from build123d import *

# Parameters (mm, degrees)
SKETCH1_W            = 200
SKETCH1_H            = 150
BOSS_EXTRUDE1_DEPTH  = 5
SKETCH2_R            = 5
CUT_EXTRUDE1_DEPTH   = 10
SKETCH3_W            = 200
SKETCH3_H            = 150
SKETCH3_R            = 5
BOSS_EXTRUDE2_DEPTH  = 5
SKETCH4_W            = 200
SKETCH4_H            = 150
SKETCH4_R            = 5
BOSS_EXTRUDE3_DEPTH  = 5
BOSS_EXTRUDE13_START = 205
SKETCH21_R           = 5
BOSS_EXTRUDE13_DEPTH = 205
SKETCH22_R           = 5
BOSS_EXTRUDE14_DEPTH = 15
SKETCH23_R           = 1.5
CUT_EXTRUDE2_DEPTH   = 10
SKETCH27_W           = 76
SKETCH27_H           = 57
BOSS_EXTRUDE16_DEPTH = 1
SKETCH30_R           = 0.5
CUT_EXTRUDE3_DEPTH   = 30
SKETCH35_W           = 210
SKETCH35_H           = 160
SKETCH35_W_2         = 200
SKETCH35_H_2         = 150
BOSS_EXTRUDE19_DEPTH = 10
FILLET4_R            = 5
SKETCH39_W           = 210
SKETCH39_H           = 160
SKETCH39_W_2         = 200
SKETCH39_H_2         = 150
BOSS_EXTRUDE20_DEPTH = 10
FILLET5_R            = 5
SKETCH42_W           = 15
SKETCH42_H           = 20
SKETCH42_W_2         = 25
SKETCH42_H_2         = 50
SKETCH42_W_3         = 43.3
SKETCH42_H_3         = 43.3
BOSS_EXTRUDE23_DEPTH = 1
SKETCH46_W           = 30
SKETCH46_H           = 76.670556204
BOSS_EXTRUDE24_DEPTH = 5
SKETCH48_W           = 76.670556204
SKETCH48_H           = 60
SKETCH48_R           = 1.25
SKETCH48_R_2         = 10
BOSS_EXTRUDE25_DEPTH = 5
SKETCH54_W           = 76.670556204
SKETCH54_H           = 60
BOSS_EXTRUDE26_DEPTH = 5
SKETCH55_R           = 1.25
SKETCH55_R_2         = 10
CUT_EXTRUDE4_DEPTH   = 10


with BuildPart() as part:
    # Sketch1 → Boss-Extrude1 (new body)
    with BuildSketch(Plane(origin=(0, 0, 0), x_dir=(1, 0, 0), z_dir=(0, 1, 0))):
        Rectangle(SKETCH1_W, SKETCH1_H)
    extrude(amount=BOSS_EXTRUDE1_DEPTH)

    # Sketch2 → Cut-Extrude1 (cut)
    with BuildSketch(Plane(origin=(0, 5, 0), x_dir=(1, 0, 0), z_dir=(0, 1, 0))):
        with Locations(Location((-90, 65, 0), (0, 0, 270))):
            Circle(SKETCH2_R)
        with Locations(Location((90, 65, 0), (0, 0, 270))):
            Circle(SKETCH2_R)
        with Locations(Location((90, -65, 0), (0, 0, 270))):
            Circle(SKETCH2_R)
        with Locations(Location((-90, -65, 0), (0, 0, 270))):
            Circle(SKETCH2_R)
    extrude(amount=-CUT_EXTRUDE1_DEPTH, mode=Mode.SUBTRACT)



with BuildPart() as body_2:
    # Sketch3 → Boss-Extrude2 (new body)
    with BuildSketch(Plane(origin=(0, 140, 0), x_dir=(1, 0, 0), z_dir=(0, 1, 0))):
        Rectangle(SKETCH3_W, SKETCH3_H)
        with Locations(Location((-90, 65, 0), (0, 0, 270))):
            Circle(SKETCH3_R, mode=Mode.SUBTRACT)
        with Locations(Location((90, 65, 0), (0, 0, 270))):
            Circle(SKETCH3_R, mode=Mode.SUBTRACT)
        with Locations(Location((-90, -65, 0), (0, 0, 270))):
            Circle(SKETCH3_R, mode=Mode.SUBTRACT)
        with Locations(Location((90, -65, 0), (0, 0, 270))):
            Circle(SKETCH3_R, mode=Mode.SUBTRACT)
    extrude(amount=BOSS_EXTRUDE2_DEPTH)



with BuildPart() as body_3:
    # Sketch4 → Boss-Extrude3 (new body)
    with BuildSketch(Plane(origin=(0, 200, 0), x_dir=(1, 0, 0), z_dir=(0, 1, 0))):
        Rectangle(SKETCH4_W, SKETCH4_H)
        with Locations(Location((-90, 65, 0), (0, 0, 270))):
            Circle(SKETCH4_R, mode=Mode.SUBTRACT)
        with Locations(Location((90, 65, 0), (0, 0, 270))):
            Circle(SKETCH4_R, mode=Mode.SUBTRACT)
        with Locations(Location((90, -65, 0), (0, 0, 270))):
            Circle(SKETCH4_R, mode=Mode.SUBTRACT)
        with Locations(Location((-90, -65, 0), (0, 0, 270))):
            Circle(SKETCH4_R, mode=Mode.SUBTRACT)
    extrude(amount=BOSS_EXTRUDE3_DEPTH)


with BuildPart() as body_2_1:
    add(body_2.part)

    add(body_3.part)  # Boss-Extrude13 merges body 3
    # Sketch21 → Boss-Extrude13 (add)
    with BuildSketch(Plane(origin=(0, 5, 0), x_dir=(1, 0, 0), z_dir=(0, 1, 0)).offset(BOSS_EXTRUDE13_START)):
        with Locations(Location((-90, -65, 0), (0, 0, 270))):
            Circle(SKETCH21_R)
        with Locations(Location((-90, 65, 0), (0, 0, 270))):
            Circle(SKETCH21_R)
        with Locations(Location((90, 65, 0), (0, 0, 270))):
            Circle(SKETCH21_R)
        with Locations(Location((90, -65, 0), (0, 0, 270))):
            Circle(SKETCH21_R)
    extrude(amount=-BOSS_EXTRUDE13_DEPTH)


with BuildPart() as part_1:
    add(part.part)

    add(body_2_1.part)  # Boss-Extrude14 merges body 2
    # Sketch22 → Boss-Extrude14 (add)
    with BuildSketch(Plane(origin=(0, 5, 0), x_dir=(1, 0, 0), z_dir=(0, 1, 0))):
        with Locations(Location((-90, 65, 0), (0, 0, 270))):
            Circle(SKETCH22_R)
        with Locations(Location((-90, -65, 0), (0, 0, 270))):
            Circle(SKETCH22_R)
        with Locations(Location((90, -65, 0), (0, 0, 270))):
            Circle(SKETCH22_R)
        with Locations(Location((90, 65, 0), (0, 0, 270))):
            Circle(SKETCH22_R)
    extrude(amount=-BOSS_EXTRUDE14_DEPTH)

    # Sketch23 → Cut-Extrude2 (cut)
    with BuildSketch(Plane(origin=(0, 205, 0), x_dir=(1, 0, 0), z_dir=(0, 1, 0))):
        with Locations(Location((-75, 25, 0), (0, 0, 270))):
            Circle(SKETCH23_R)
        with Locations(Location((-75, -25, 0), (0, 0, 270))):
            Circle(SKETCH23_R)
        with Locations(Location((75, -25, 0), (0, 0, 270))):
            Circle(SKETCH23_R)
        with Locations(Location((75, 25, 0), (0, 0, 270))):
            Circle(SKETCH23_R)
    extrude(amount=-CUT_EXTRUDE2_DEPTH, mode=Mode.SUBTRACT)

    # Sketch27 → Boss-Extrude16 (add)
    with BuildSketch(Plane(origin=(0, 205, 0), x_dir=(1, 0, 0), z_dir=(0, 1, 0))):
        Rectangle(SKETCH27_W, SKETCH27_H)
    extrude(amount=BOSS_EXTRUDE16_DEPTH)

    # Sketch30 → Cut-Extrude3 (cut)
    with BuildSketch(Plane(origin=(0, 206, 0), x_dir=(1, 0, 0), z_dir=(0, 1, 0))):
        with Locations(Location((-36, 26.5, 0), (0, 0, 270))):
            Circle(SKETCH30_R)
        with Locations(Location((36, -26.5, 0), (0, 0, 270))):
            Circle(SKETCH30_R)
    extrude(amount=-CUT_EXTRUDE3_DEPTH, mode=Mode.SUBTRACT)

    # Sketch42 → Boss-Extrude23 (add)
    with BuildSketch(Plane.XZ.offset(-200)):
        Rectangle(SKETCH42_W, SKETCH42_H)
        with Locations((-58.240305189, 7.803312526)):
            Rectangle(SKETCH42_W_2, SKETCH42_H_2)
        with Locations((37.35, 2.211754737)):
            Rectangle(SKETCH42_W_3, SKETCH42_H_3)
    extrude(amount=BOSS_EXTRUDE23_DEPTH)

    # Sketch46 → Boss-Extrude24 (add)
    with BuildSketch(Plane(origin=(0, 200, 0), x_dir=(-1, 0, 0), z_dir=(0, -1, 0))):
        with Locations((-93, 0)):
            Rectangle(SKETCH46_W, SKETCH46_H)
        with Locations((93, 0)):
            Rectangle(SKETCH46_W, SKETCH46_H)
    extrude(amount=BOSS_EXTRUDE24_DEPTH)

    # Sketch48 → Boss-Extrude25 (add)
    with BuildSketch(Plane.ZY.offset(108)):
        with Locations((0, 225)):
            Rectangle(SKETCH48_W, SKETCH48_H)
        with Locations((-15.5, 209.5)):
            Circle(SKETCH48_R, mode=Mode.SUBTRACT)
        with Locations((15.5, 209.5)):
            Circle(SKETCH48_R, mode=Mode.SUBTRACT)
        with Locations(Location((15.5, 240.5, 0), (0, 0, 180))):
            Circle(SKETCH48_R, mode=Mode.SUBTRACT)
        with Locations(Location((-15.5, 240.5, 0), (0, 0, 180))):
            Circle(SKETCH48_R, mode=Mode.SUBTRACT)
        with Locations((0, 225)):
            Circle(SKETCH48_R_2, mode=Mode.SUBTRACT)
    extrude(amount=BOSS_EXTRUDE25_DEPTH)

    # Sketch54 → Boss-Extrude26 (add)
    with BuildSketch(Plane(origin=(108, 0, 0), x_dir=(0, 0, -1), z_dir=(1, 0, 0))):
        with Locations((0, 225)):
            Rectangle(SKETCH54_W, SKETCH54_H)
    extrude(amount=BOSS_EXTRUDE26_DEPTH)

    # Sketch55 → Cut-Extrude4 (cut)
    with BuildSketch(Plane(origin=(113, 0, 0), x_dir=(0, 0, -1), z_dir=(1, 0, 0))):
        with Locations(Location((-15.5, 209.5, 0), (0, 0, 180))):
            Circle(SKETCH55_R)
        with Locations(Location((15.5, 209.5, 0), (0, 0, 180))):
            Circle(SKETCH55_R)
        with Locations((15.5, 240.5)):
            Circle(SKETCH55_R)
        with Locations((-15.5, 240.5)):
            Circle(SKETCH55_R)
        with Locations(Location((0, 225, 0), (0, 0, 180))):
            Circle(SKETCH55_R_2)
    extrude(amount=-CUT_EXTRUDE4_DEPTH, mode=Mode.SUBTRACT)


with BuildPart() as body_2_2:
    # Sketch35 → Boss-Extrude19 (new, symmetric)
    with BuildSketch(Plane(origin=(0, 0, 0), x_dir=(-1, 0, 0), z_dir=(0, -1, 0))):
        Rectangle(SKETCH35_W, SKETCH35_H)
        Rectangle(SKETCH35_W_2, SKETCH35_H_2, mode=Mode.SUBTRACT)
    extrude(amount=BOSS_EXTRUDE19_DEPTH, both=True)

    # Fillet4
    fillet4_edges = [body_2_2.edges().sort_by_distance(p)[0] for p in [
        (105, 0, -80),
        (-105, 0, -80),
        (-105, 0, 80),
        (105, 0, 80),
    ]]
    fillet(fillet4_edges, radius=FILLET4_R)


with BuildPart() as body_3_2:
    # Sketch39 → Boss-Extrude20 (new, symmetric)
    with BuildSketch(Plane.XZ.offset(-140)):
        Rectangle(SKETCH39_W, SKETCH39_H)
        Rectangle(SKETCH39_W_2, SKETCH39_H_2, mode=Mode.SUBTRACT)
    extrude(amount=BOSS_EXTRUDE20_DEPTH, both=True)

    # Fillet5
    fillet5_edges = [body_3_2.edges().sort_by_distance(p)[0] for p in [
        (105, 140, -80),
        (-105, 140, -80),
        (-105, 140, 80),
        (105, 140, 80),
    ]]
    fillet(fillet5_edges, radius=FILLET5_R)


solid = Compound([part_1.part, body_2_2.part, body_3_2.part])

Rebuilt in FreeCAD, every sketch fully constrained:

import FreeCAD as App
import Part
import Sketcher
from FreeCAD import Vector
Q = App.Units.Quantity


def edges_at(feature, points):
    """Names of the edges that pass closest to the given points."""
    edges = feature.Shape.Edges
    near = lambda p: min(range(len(edges)), key=lambda i: edges[i].distToShape(Part.Vertex(*p))[0])
    return sorted({f"Edge{near(p) + 1}" for p in points})

doc = App.newDocument("Part")
body = doc.addObject("PartDesign::Body", "Body")

# Sketch on XZ plane
sketch1 = doc.addObject("Sketcher::SketchObject", "Sketch")
body.addObject(sketch1)
sketch1.AttachmentSupport = (doc.XZ_Plane, [""])
sketch1.MapMode = "FlatFace"
sketch1.addGeometry(Part.LineSegment(Vector(-100, -75, 0), Vector(-100, 75, 0)), False)
sketch1.addGeometry(Part.LineSegment(Vector(-100, 75, 0), Vector(100, 75, 0)), False)
sketch1.addGeometry(Part.LineSegment(Vector(100, 75, 0), Vector(100, -75, 0)), False)
sketch1.addGeometry(Part.LineSegment(Vector(100, -75, 0), Vector(-100, -75, 0)), False)
sketch1.addConstraint(Sketcher.Constraint("Coincident", 0, 2, 1, 1))
sketch1.addConstraint(Sketcher.Constraint("Coincident", 1, 2, 2, 1))
sketch1.addConstraint(Sketcher.Constraint("Coincident", 2, 2, 3, 1))
sketch1.addConstraint(Sketcher.Constraint("Coincident", 3, 2, 0, 1))
sketch1.addConstraint(Sketcher.Constraint("Vertical", 0))
sketch1.addConstraint(Sketcher.Constraint("Horizontal", 1))
sketch1.addConstraint(Sketcher.Constraint("Vertical", 2))
sketch1.addConstraint(Sketcher.Constraint("Horizontal", 3))
sketch1.addConstraint(Sketcher.Constraint("Symmetric", 0, 2, 2, 2, -1, 1))
sketch1.addConstraint(Sketcher.Constraint("DistanceX", 1, 1, 1, 2, Q("200 mm")))
sketch1.addConstraint(Sketcher.Constraint("DistanceY", 0, 1, 0, 2, Q("150 mm")))
pad1 = doc.addObject("PartDesign::Pad", "Pad")
body.addObject(pad1)
pad1.Profile = sketch1
pad1.Length = 5
pad1.Reversed = True

# Sketch on XZ plane
sketch2 = doc.addObject("Sketcher::SketchObject", "Sketch001")
body.addObject(sketch2)
sketch2.AttachmentSupport = (doc.XZ_Plane, [""])
sketch2.MapMode = "FlatFace"
sketch2.AttachmentOffset = App.Placement(Vector(0, 0, -5), App.Rotation())
sketch2.addGeometry(Part.Circle(Vector(-90, -65, 0), Vector(0, 0, 1), 5), False)
sketch2.addGeometry(Part.Circle(Vector(90, -65, 0), Vector(0, 0, 1), 5), False)
sketch2.addGeometry(Part.Circle(Vector(90, 65, 0), Vector(0, 0, 1), 5), False)
sketch2.addGeometry(Part.Circle(Vector(-90, 65, 0), Vector(0, 0, 1), 5), False)
sketch2.addConstraint(Sketcher.Constraint("Equal", 0, 1))
sketch2.addConstraint(Sketcher.Constraint("Equal", 1, 2))
sketch2.addConstraint(Sketcher.Constraint("Equal", 2, 3))
sketch2.addConstraint(Sketcher.Constraint("Symmetric", 0, 3, 2, 3, -1, 1))
sketch2.addConstraint(Sketcher.Constraint("Symmetric", 1, 3, 3, 3, -1, 1))
sketch2.addConstraint(Sketcher.Constraint("Symmetric", 0, 3, 1, 3, -2))
sketch2.addConstraint(Sketcher.Constraint("Diameter", 0, Q("10 mm")))
sketch2.addConstraint(Sketcher.Constraint("DistanceX", 0, 3, -1, 1, Q("90 mm")))
sketch2.addConstraint(Sketcher.Constraint("DistanceY", 0, 3, -1, 1, Q("65 mm")))
pocket1 = doc.addObject("PartDesign::Pocket", "Pocket")
body.addObject(pocket1)
pocket1.Profile = sketch2
pocket1.Length = 10
pocket1.Reversed = True
body2 = doc.addObject("PartDesign::Body", "Body001")

# Sketch on XZ plane
sketch3 = doc.addObject("Sketcher::SketchObject", "Sketch002")
body2.addObject(sketch3)
sketch3.AttachmentSupport = (doc.getObject("XZ_Plane001"), [""])
sketch3.MapMode = "FlatFace"
sketch3.AttachmentOffset = App.Placement(Vector(0, 0, -140), App.Rotation())
sketch3.addGeometry(Part.LineSegment(Vector(-100, -75, 0), Vector(-100, 75, 0)), False)
sketch3.addGeometry(Part.LineSegment(Vector(-100, 75, 0), Vector(100, 75, 0)), False)
sketch3.addGeometry(Part.LineSegment(Vector(100, 75, 0), Vector(100, -75, 0)), False)
sketch3.addGeometry(Part.LineSegment(Vector(100, -75, 0), Vector(-100, -75, 0)), False)
sketch3.addGeometry(Part.Circle(Vector(-90, 65, 0), Vector(0, 0, 1), 5), False)
sketch3.addGeometry(Part.Circle(Vector(90, 65, 0), Vector(0, 0, 1), 5), False)
sketch3.addGeometry(Part.Circle(Vector(-90, -65, 0), Vector(0, 0, 1), 5), False)
sketch3.addGeometry(Part.Circle(Vector(90, -65, 0), Vector(0, 0, 1), 5), False)
sketch3.addConstraint(Sketcher.Constraint("Coincident", 0, 2, 1, 1))
sketch3.addConstraint(Sketcher.Constraint("Coincident", 1, 2, 2, 1))
sketch3.addConstraint(Sketcher.Constraint("Coincident", 2, 2, 3, 1))
sketch3.addConstraint(Sketcher.Constraint("Coincident", 3, 2, 0, 1))
sketch3.addConstraint(Sketcher.Constraint("Vertical", 0))
sketch3.addConstraint(Sketcher.Constraint("Horizontal", 1))
sketch3.addConstraint(Sketcher.Constraint("Vertical", 2))
sketch3.addConstraint(Sketcher.Constraint("Horizontal", 3))
sketch3.addConstraint(Sketcher.Constraint("Equal", 4, 5))
sketch3.addConstraint(Sketcher.Constraint("Equal", 5, 6))
sketch3.addConstraint(Sketcher.Constraint("Equal", 6, 7))
sketch3.addConstraint(Sketcher.Constraint("Symmetric", 5, 3, 6, 3, -1, 1))
sketch3.addConstraint(Sketcher.Constraint("Symmetric", 4, 3, 7, 3, -1, 1))
sketch3.addConstraint(Sketcher.Constraint("Symmetric", 0, 2, 2, 2, -1, 1))
sketch3.addConstraint(Sketcher.Constraint("Symmetric", 4, 3, 5, 3, -2))
sketch3.addConstraint(Sketcher.Constraint("Diameter", 4, Q("10 mm")))
sketch3.addConstraint(Sketcher.Constraint("DistanceX", 1, 1, 1, 2, Q("200 mm")))
sketch3.addConstraint(Sketcher.Constraint("DistanceY", 0, 1, 0, 2, Q("150 mm")))
sketch3.addConstraint(Sketcher.Constraint("DistanceX", 4, 3, -1, 1, Q("90 mm")))
sketch3.addConstraint(Sketcher.Constraint("DistanceY", -1, 1, 4, 3, Q("65 mm")))
pad2 = doc.addObject("PartDesign::Pad", "Pad001")
body2.addObject(pad2)
pad2.Profile = sketch3
pad2.Length = 5
pad2.Reversed = True
body3 = doc.addObject("PartDesign::Body", "Body002")

# Sketch on XZ plane
sketch4 = doc.addObject("Sketcher::SketchObject", "Sketch003")
body3.addObject(sketch4)
sketch4.AttachmentSupport = (doc.getObject("XZ_Plane002"), [""])
sketch4.MapMode = "FlatFace"
sketch4.AttachmentOffset = App.Placement(Vector(0, 0, -200), App.Rotation())
sketch4.addGeometry(Part.LineSegment(Vector(-100, -75, 0), Vector(-100, 75, 0)), False)
sketch4.addGeometry(Part.LineSegment(Vector(-100, 75, 0), Vector(100, 75, 0)), False)
sketch4.addGeometry(Part.LineSegment(Vector(100, 75, 0), Vector(100, -75, 0)), False)
sketch4.addGeometry(Part.LineSegment(Vector(100, -75, 0), Vector(-100, -75, 0)), False)
sketch4.addGeometry(Part.Circle(Vector(-90, 65, 0), Vector(0, 0, 1), 5), False)
sketch4.addGeometry(Part.Circle(Vector(90, 65, 0), Vector(0, 0, 1), 5), False)
sketch4.addGeometry(Part.Circle(Vector(-90, -65, 0), Vector(0, 0, 1), 5), False)
sketch4.addGeometry(Part.Circle(Vector(90, -65, 0), Vector(0, 0, 1), 5), False)
sketch4.addConstraint(Sketcher.Constraint("Coincident", 0, 2, 1, 1))
sketch4.addConstraint(Sketcher.Constraint("Coincident", 1, 2, 2, 1))
sketch4.addConstraint(Sketcher.Constraint("Coincident", 2, 2, 3, 1))
sketch4.addConstraint(Sketcher.Constraint("Coincident", 3, 2, 0, 1))
sketch4.addConstraint(Sketcher.Constraint("Vertical", 0))
sketch4.addConstraint(Sketcher.Constraint("Horizontal", 1))
sketch4.addConstraint(Sketcher.Constraint("Vertical", 2))
sketch4.addConstraint(Sketcher.Constraint("Horizontal", 3))
sketch4.addConstraint(Sketcher.Constraint("Equal", 4, 5))
sketch4.addConstraint(Sketcher.Constraint("Equal", 5, 6))
sketch4.addConstraint(Sketcher.Constraint("Equal", 6, 7))
sketch4.addConstraint(Sketcher.Constraint("Symmetric", 5, 3, 6, 3, -1, 1))
sketch4.addConstraint(Sketcher.Constraint("Symmetric", 4, 3, 7, 3, -1, 1))
sketch4.addConstraint(Sketcher.Constraint("Symmetric", 0, 2, 2, 2, -1, 1))
sketch4.addConstraint(Sketcher.Constraint("Symmetric", 4, 3, 5, 3, -2))
sketch4.addConstraint(Sketcher.Constraint("Diameter", 4, Q("10 mm")))
sketch4.addConstraint(Sketcher.Constraint("DistanceX", 1, 1, 1, 2, Q("200 mm")))
sketch4.addConstraint(Sketcher.Constraint("DistanceY", 0, 1, 0, 2, Q("150 mm")))
sketch4.addConstraint(Sketcher.Constraint("DistanceX", 4, 3, -1, 1, Q("90 mm")))
sketch4.addConstraint(Sketcher.Constraint("DistanceY", -1, 1, 4, 3, Q("65 mm")))
pad3 = doc.addObject("PartDesign::Pad", "Pad002")
body3.addObject(pad3)
pad3.Profile = sketch4
pad3.Length = 5
pad3.Reversed = True
body2.AllowCompound = True
doc.recompute()

boolean = doc.addObject("PartDesign::Boolean", "Boolean")
body2.addObject(boolean)
boolean.Type = "Fuse"
boolean.addObjects([body3])

# Sketch on XZ plane
sketch5 = doc.addObject("Sketcher::SketchObject", "Sketch004")
body2.addObject(sketch5)
sketch5.AttachmentSupport = (doc.getObject("XZ_Plane001"), [""])
sketch5.MapMode = "FlatFace"
sketch5.AttachmentOffset = App.Placement(Vector(0, 0, -210), App.Rotation())
sketch5.addGeometry(Part.Circle(Vector(-90, 65, 0), Vector(0, 0, 1), 5), False)
sketch5.addGeometry(Part.Circle(Vector(-90, -65, 0), Vector(0, 0, 1), 5), False)
sketch5.addGeometry(Part.Circle(Vector(90, -65, 0), Vector(0, 0, 1), 5), False)
sketch5.addGeometry(Part.Circle(Vector(90, 65, 0), Vector(0, 0, 1), 5), False)
sketch5.addConstraint(Sketcher.Constraint("Equal", 0, 1))
sketch5.addConstraint(Sketcher.Constraint("Equal", 1, 2))
sketch5.addConstraint(Sketcher.Constraint("Equal", 2, 3))
sketch5.addConstraint(Sketcher.Constraint("Symmetric", 0, 3, 2, 3, -1, 1))
sketch5.addConstraint(Sketcher.Constraint("Symmetric", 1, 3, 3, 3, -1, 1))
sketch5.addConstraint(Sketcher.Constraint("Symmetric", 1, 3, 2, 3, -2))
sketch5.addConstraint(Sketcher.Constraint("Diameter", 0, Q("10 mm")))
sketch5.addConstraint(Sketcher.Constraint("DistanceX", 0, 3, -1, 1, Q("90 mm")))
sketch5.addConstraint(Sketcher.Constraint("DistanceY", -1, 1, 0, 3, Q("65 mm")))
pad4 = doc.addObject("PartDesign::Pad", "Pad003")
body2.addObject(pad4)
pad4.Profile = sketch5
pad4.Length = 205
body.AllowCompound = True
doc.recompute()

boolean2 = doc.addObject("PartDesign::Boolean", "Boolean001")
body.addObject(boolean2)
boolean2.Type = "Fuse"
boolean2.addObjects([body2])

# Sketch on XZ plane
sketch6 = doc.addObject("Sketcher::SketchObject", "Sketch005")
body.addObject(sketch6)
sketch6.AttachmentSupport = (doc.XZ_Plane, [""])
sketch6.MapMode = "FlatFace"
sketch6.AttachmentOffset = App.Placement(Vector(0, 0, -5), App.Rotation())
sketch6.addGeometry(Part.Circle(Vector(-90, -65, 0), Vector(0, 0, 1), 5), False)
sketch6.addGeometry(Part.Circle(Vector(-90, 65, 0), Vector(0, 0, 1), 5), False)
sketch6.addGeometry(Part.Circle(Vector(90, 65, 0), Vector(0, 0, 1), 5), False)
sketch6.addGeometry(Part.Circle(Vector(90, -65, 0), Vector(0, 0, 1), 5), False)
sketch6.addConstraint(Sketcher.Constraint("Equal", 0, 1))
sketch6.addConstraint(Sketcher.Constraint("Equal", 1, 2))
sketch6.addConstraint(Sketcher.Constraint("Equal", 2, 3))
sketch6.addConstraint(Sketcher.Constraint("Symmetric", 0, 3, 2, 3, -1, 1))
sketch6.addConstraint(Sketcher.Constraint("Symmetric", 1, 3, 3, 3, -1, 1))
sketch6.addConstraint(Sketcher.Constraint("Symmetric", 1, 3, 2, 3, -2))
sketch6.addConstraint(Sketcher.Constraint("Diameter", 0, Q("10 mm")))
sketch6.addConstraint(Sketcher.Constraint("DistanceX", 0, 3, -1, 1, Q("90 mm")))
sketch6.addConstraint(Sketcher.Constraint("DistanceY", 0, 3, -1, 1, Q("65 mm")))
pad5 = doc.addObject("PartDesign::Pad", "Pad004")
body.addObject(pad5)
pad5.Profile = sketch6
pad5.Length = 15

# Sketch on XZ plane
sketch7 = doc.addObject("Sketcher::SketchObject", "Sketch006")
body.addObject(sketch7)
sketch7.AttachmentSupport = (doc.XZ_Plane, [""])
sketch7.MapMode = "FlatFace"
sketch7.AttachmentOffset = App.Placement(Vector(0, 0, -205), App.Rotation())
sketch7.addGeometry(Part.Circle(Vector(-75, -25, 0), Vector(0, 0, 1), 1.5), False)
sketch7.addGeometry(Part.Circle(Vector(-75, 25, 0), Vector(0, 0, 1), 1.5), False)
sketch7.addGeometry(Part.Circle(Vector(75, 25, 0), Vector(0, 0, 1), 1.5), False)
sketch7.addGeometry(Part.Circle(Vector(75, -25, 0), Vector(0, 0, 1), 1.5), False)
sketch7.addConstraint(Sketcher.Constraint("Equal", 0, 1))
sketch7.addConstraint(Sketcher.Constraint("Equal", 1, 2))
sketch7.addConstraint(Sketcher.Constraint("Equal", 2, 3))
sketch7.addConstraint(Sketcher.Constraint("Symmetric", 0, 3, 2, 3, -1, 1))
sketch7.addConstraint(Sketcher.Constraint("Symmetric", 1, 3, 3, 3, -1, 1))
sketch7.addConstraint(Sketcher.Constraint("Symmetric", 1, 3, 2, 3, -2))
sketch7.addConstraint(Sketcher.Constraint("Diameter", 0, Q("3 mm")))
sketch7.addConstraint(Sketcher.Constraint("DistanceX", 0, 3, -1, 1, Q("75 mm")))
sketch7.addConstraint(Sketcher.Constraint("DistanceY", 0, 3, -1, 1, Q("25 mm")))
pocket2 = doc.addObject("PartDesign::Pocket", "Pocket001")
body.addObject(pocket2)
pocket2.Profile = sketch7
pocket2.Length = 10
pocket2.Reversed = True

# Sketch on XZ plane
sketch8 = doc.addObject("Sketcher::SketchObject", "Sketch007")
body.addObject(sketch8)
sketch8.AttachmentSupport = (doc.XZ_Plane, [""])
sketch8.MapMode = "FlatFace"
sketch8.AttachmentOffset = App.Placement(Vector(0, 0, -205), App.Rotation())
sketch8.addGeometry(Part.LineSegment(Vector(-38, -28.5, 0), Vector(-38, 28.5, 0)), False)
sketch8.addGeometry(Part.LineSegment(Vector(-38, 28.5, 0), Vector(38, 28.5, 0)), False)
sketch8.addGeometry(Part.LineSegment(Vector(38, 28.5, 0), Vector(38, -28.5, 0)), False)
sketch8.addGeometry(Part.LineSegment(Vector(38, -28.5, 0), Vector(-38, -28.5, 0)), False)
sketch8.addConstraint(Sketcher.Constraint("Coincident", 0, 2, 1, 1))
sketch8.addConstraint(Sketcher.Constraint("Coincident", 1, 2, 2, 1))
sketch8.addConstraint(Sketcher.Constraint("Coincident", 2, 2, 3, 1))
sketch8.addConstraint(Sketcher.Constraint("Coincident", 3, 2, 0, 1))
sketch8.addConstraint(Sketcher.Constraint("Vertical", 0))
sketch8.addConstraint(Sketcher.Constraint("Horizontal", 1))
sketch8.addConstraint(Sketcher.Constraint("Vertical", 2))
sketch8.addConstraint(Sketcher.Constraint("Horizontal", 3))
sketch8.addConstraint(Sketcher.Constraint("Symmetric", 0, 2, 2, 2, -1, 1))
sketch8.addConstraint(Sketcher.Constraint("DistanceX", 1, 1, 1, 2, Q("76 mm")))
sketch8.addConstraint(Sketcher.Constraint("DistanceY", 0, 1, 0, 2, Q("57 mm")))
pad6 = doc.addObject("PartDesign::Pad", "Pad005")
body.addObject(pad6)
pad6.Profile = sketch8
pad6.Length = 1
pad6.Reversed = True

# Sketch on XZ plane
sketch9 = doc.addObject("Sketcher::SketchObject", "Sketch008")
body.addObject(sketch9)
sketch9.AttachmentSupport = (doc.XZ_Plane, [""])
sketch9.MapMode = "FlatFace"
sketch9.AttachmentOffset = App.Placement(Vector(0, 0, -206), App.Rotation())
sketch9.addGeometry(Part.Circle(Vector(-36, -26.5, 0), Vector(0, 0, 1), 0.5), False)
sketch9.addGeometry(Part.Circle(Vector(36, 26.5, 0), Vector(0, 0, 1), 0.5), False)
sketch9.addConstraint(Sketcher.Constraint("Equal", 0, 1))
sketch9.addConstraint(Sketcher.Constraint("Symmetric", 0, 3, 1, 3, -1, 1))
sketch9.addConstraint(Sketcher.Constraint("Diameter", 0, Q("1 mm")))
sketch9.addConstraint(Sketcher.Constraint("DistanceX", 0, 3, -1, 1, Q("36 mm")))
sketch9.addConstraint(Sketcher.Constraint("DistanceY", 0, 3, 1, 3, Q("53 mm")))
pocket3 = doc.addObject("PartDesign::Pocket", "Pocket002")
body.addObject(pocket3)
pocket3.Profile = sketch9
pocket3.Length = 30
pocket3.Reversed = True

# Sketch on XZ plane
sketch10 = doc.addObject("Sketcher::SketchObject", "Sketch009")
body.addObject(sketch10)
sketch10.AttachmentSupport = (doc.XZ_Plane, [""])
sketch10.MapMode = "FlatFace"
sketch10.AttachmentOffset = App.Placement(Vector(0, 0, -200), App.Rotation())
sketch10.addGeometry(Part.LineSegment(Vector(-7.5, 10, 0), Vector(-7.5, -10, 0)), False)
sketch10.addGeometry(Part.LineSegment(Vector(-7.5, -10, 0), Vector(7.5, -10, 0)), False)
sketch10.addGeometry(Part.LineSegment(Vector(7.5, -10, 0), Vector(7.5, 10, 0)), False)
sketch10.addGeometry(Part.LineSegment(Vector(7.5, 10, 0), Vector(-7.5, 10, 0)), False)
sketch10.addGeometry(Part.LineSegment(Vector(-70.740305, 32.803313, 0), Vector(-70.740305, -17.196687, 0)), False)
sketch10.addGeometry(Part.LineSegment(Vector(-70.740305, -17.196687, 0), Vector(-45.740305, -17.196687, 0)), False)
sketch10.addGeometry(Part.LineSegment(Vector(-45.740305, -17.196687, 0), Vector(-45.740305, 32.803313, 0)), False)
sketch10.addGeometry(Part.LineSegment(Vector(-45.740305, 32.803313, 0), Vector(-70.740305, 32.803313, 0)), False)
sketch10.addGeometry(Part.LineSegment(Vector(15.7, 23.861755, 0), Vector(15.7, -19.438245, 0)), False)
sketch10.addGeometry(Part.LineSegment(Vector(15.7, -19.438245, 0), Vector(59, -19.438245, 0)), False)
sketch10.addGeometry(Part.LineSegment(Vector(59, -19.438245, 0), Vector(59, 23.861755, 0)), False)
sketch10.addGeometry(Part.LineSegment(Vector(59, 23.861755, 0), Vector(15.7, 23.861755, 0)), False)
sketch10.addConstraint(Sketcher.Constraint("Coincident", 0, 2, 1, 1))
sketch10.addConstraint(Sketcher.Constraint("Coincident", 1, 2, 2, 1))
sketch10.addConstraint(Sketcher.Constraint("Coincident", 2, 2, 3, 1))
sketch10.addConstraint(Sketcher.Constraint("Coincident", 3, 2, 0, 1))
sketch10.addConstraint(Sketcher.Constraint("Coincident", 4, 2, 5, 1))
sketch10.addConstraint(Sketcher.Constraint("Coincident", 5, 2, 6, 1))
sketch10.addConstraint(Sketcher.Constraint("Coincident", 6, 2, 7, 1))
sketch10.addConstraint(Sketcher.Constraint("Coincident", 7, 2, 4, 1))
sketch10.addConstraint(Sketcher.Constraint("Coincident", 8, 2, 9, 1))
sketch10.addConstraint(Sketcher.Constraint("Coincident", 9, 2, 10, 1))
sketch10.addConstraint(Sketcher.Constraint("Coincident", 10, 2, 11, 1))
sketch10.addConstraint(Sketcher.Constraint("Coincident", 11, 2, 8, 1))
sketch10.addConstraint(Sketcher.Constraint("Vertical", 0))
sketch10.addConstraint(Sketcher.Constraint("Horizontal", 1))
sketch10.addConstraint(Sketcher.Constraint("Vertical", 2))
sketch10.addConstraint(Sketcher.Constraint("Horizontal", 3))
sketch10.addConstraint(Sketcher.Constraint("Vertical", 4))
sketch10.addConstraint(Sketcher.Constraint("Horizontal", 5))
sketch10.addConstraint(Sketcher.Constraint("Vertical", 6))
sketch10.addConstraint(Sketcher.Constraint("Horizontal", 7))
sketch10.addConstraint(Sketcher.Constraint("Vertical", 8))
sketch10.addConstraint(Sketcher.Constraint("Horizontal", 9))
sketch10.addConstraint(Sketcher.Constraint("Vertical", 10))
sketch10.addConstraint(Sketcher.Constraint("Horizontal", 11))
sketch10.addConstraint(Sketcher.Constraint("Symmetric", 0, 2, 2, 2, -1, 1))
sketch10.addConstraint(Sketcher.Constraint("Equal", 11, 8))
sketch10.addConstraint(Sketcher.Constraint("DistanceX", 1, 1, 1, 2, Q("15 mm")))
sketch10.addConstraint(Sketcher.Constraint("DistanceX", 5, 1, 5, 2, Q("25 mm")))
sketch10.addConstraint(Sketcher.Constraint("DistanceY", 0, 2, 0, 1, Q("20 mm")))
sketch10.addConstraint(Sketcher.Constraint("DistanceY", 4, 2, 4, 1, Q("50 mm")))
sketch10.addConstraint(Sketcher.Constraint("DistanceX", 9, 1, 9, 2, Q("43.3 mm")))
sketch10.addConstraint(Sketcher.Constraint("DistanceX", -1, 1, 9, 2, Q("59 mm")))
sketch10.addConstraint(Sketcher.Constraint("DistanceX", 4, 2, -1, 1, Q("70.740305 mm")))
sketch10.addConstraint(Sketcher.Constraint("DistanceY", 4, 2, -1, 1, Q("17.196687 mm")))
sketch10.addConstraint(Sketcher.Constraint("DistanceY", 8, 2, -1, 1, Q("19.438245 mm")))
pad7 = doc.addObject("PartDesign::Pad", "Pad006")
body.addObject(pad7)
pad7.Profile = sketch10
pad7.Length = 1

# Sketch on XZ plane
sketch11 = doc.addObject("Sketcher::SketchObject", "Sketch010")
body.addObject(sketch11)
sketch11.AttachmentSupport = (doc.XZ_Plane, [""])
sketch11.MapMode = "FlatFace"
sketch11.AttachmentOffset = App.Placement(Vector(0, 0, -200), App.Rotation())
sketch11.addGeometry(Part.LineSegment(Vector(108, -38.335278, 0), Vector(108, 38.335278, 0)), False)
sketch11.addGeometry(Part.LineSegment(Vector(108, 38.335278, 0), Vector(78, 38.335278, 0)), False)
sketch11.addGeometry(Part.LineSegment(Vector(78, 38.335278, 0), Vector(78, -38.335278, 0)), False)
sketch11.addGeometry(Part.LineSegment(Vector(78, -38.335278, 0), Vector(108, -38.335278, 0)), False)
sketch11.addGeometry(Part.LineSegment(Vector(-78, -38.335278, 0), Vector(-78, 38.335278, 0)), False)
sketch11.addGeometry(Part.LineSegment(Vector(-78, 38.335278, 0), Vector(-108, 38.335278, 0)), False)
sketch11.addGeometry(Part.LineSegment(Vector(-108, 38.335278, 0), Vector(-108, -38.335278, 0)), False)
sketch11.addGeometry(Part.LineSegment(Vector(-108, -38.335278, 0), Vector(-78, -38.335278, 0)), False)
sketch11.addConstraint(Sketcher.Constraint("Coincident", 0, 2, 1, 1))
sketch11.addConstraint(Sketcher.Constraint("Coincident", 1, 2, 2, 1))
sketch11.addConstraint(Sketcher.Constraint("Coincident", 2, 2, 3, 1))
sketch11.addConstraint(Sketcher.Constraint("Coincident", 3, 2, 0, 1))
sketch11.addConstraint(Sketcher.Constraint("Coincident", 4, 2, 5, 1))
sketch11.addConstraint(Sketcher.Constraint("Coincident", 5, 2, 6, 1))
sketch11.addConstraint(Sketcher.Constraint("Coincident", 6, 2, 7, 1))
sketch11.addConstraint(Sketcher.Constraint("Coincident", 7, 2, 4, 1))
sketch11.addConstraint(Sketcher.Constraint("Vertical", 0))
sketch11.addConstraint(Sketcher.Constraint("Horizontal", 1))
sketch11.addConstraint(Sketcher.Constraint("Vertical", 2))
sketch11.addConstraint(Sketcher.Constraint("Horizontal", 3))
sketch11.addConstraint(Sketcher.Constraint("Vertical", 4))
sketch11.addConstraint(Sketcher.Constraint("Horizontal", 5))
sketch11.addConstraint(Sketcher.Constraint("Vertical", 6))
sketch11.addConstraint(Sketcher.Constraint("Horizontal", 7))
sketch11.addConstraint(Sketcher.Constraint("Symmetric", 2, 2, 4, 2, -1, 1))
sketch11.addConstraint(Sketcher.Constraint("Symmetric", 0, 2, 6, 2, -1, 1))
sketch11.addConstraint(Sketcher.Constraint("Horizontal", 1, 2, 4, 2))
sketch11.addConstraint(Sketcher.Constraint("DistanceX", 1, 2, 1, 1, Q("30 mm")))
sketch11.addConstraint(Sketcher.Constraint("DistanceX", -1, 1, 0, 2, Q("108 mm")))
sketch11.addConstraint(Sketcher.Constraint("DistanceY", 0, 1, 0, 2, Q("76.670556 mm")))
pad8 = doc.addObject("PartDesign::Pad", "Pad007")
body.addObject(pad8)
pad8.Profile = sketch11
pad8.Length = 5

# Sketch on YZ plane
sketch12 = doc.addObject("Sketcher::SketchObject", "Sketch011")
body.addObject(sketch12)
sketch12.AttachmentSupport = (doc.YZ_Plane, [""])
sketch12.MapMode = "FlatFace"
sketch12.AttachmentOffset = App.Placement(Vector(0, 0, -108), App.Rotation())
sketch12.addGeometry(Part.LineSegment(Vector(255, -38.335278, 0), Vector(195, -38.335278, 0)), False)
sketch12.addGeometry(Part.LineSegment(Vector(195, -38.335278, 0), Vector(195, 38.335278, 0)), False)
sketch12.addGeometry(Part.LineSegment(Vector(195, 38.335278, 0), Vector(255, 38.335278, 0)), False)
sketch12.addGeometry(Part.LineSegment(Vector(255, 38.335278, 0), Vector(255, -38.335278, 0)), False)
sketch12.addGeometry(Part.Circle(Vector(209.5, -15.5, 0), Vector(0, 0, 1), 1.25), False)
sketch12.addGeometry(Part.Circle(Vector(209.5, 15.5, 0), Vector(0, 0, 1), 1.25), False)
sketch12.addGeometry(Part.Circle(Vector(240.5, -15.5, 0), Vector(0, 0, 1), 1.25), False)
sketch12.addGeometry(Part.Circle(Vector(225, 0, 0), Vector(0, 0, 1), 10), False)
sketch12.addGeometry(Part.Circle(Vector(240.5, 15.5, 0), Vector(0, 0, 1), 1.25), False)
sketch12.addConstraint(Sketcher.Constraint("Coincident", 0, 2, 1, 1))
sketch12.addConstraint(Sketcher.Constraint("Coincident", 1, 2, 2, 1))
sketch12.addConstraint(Sketcher.Constraint("Coincident", 2, 2, 3, 1))
sketch12.addConstraint(Sketcher.Constraint("Coincident", 3, 2, 0, 1))
sketch12.addConstraint(Sketcher.Constraint("Horizontal", 0))
sketch12.addConstraint(Sketcher.Constraint("Vertical", 1))
sketch12.addConstraint(Sketcher.Constraint("Horizontal", 2))
sketch12.addConstraint(Sketcher.Constraint("Vertical", 3))
sketch12.addConstraint(Sketcher.Constraint("Equal", 4, 5))
sketch12.addConstraint(Sketcher.Constraint("Equal", 5, 6))
sketch12.addConstraint(Sketcher.Constraint("Equal", 6, 8))
sketch12.addConstraint(Sketcher.Constraint("Symmetric", 4, 3, 5, 3, -1))
sketch12.addConstraint(Sketcher.Constraint("Symmetric", 6, 3, 8, 3, -1))
sketch12.addConstraint(Sketcher.Constraint("PointOnObject", 7, 3, -1))
sketch12.addConstraint(Sketcher.Constraint("Horizontal", 4, 3, 6, 3))
sketch12.addConstraint(Sketcher.Constraint("Diameter", 7, Q("20 mm")))
sketch12.addConstraint(Sketcher.Constraint("Diameter", 4, Q("2.5 mm")))
sketch12.addConstraint(Sketcher.Constraint("DistanceX", 0, 2, 0, 1, Q("60 mm")))
sketch12.addConstraint(Sketcher.Constraint("DistanceX", -1, 1, 7, 3, Q("225 mm")))
sketch12.addConstraint(Sketcher.Constraint("DistanceX", -1, 1, 0, 2, Q("195 mm")))
sketch12.addConstraint(Sketcher.Constraint("DistanceY", 4, 3, 5, 3, Q("31 mm")))
sketch12.addConstraint(Sketcher.Constraint("DistanceX", 4, 3, 6, 3, Q("31 mm")))
sketch12.addConstraint(Sketcher.Constraint("DistanceX", -1, 1, 4, 3, Q("209.5 mm")))
sketch12.addConstraint(Sketcher.Constraint("DistanceY", 1, 1, 1, 2, Q("76.670556 mm")))
sketch12.addConstraint(Sketcher.Constraint("DistanceY", 0, 2, -1, 1, Q("38.335278 mm")))
pad9 = doc.addObject("PartDesign::Pad", "Pad008")
body.addObject(pad9)
pad9.Profile = sketch12
pad9.Length = 5
pad9.Reversed = True

# Sketch on YZ plane
sketch13 = doc.addObject("Sketcher::SketchObject", "Sketch012")
body.addObject(sketch13)
sketch13.AttachmentSupport = (doc.YZ_Plane, [""])
sketch13.MapMode = "FlatFace"
sketch13.AttachmentOffset = App.Placement(Vector(0, 0, 108), App.Rotation())
sketch13.addGeometry(Part.LineSegment(Vector(255, 38.335278, 0), Vector(195, 38.335278, 0)), False)
sketch13.addGeometry(Part.LineSegment(Vector(195, 38.335278, 0), Vector(195, -38.335278, 0)), False)
sketch13.addGeometry(Part.LineSegment(Vector(195, -38.335278, 0), Vector(255, -38.335278, 0)), False)
sketch13.addGeometry(Part.LineSegment(Vector(255, -38.335278, 0), Vector(255, 38.335278, 0)), False)
sketch13.addConstraint(Sketcher.Constraint("Coincident", 0, 2, 1, 1))
sketch13.addConstraint(Sketcher.Constraint("Coincident", 1, 2, 2, 1))
sketch13.addConstraint(Sketcher.Constraint("Coincident", 2, 2, 3, 1))
sketch13.addConstraint(Sketcher.Constraint("Coincident", 3, 2, 0, 1))
sketch13.addConstraint(Sketcher.Constraint("Horizontal", 0))
sketch13.addConstraint(Sketcher.Constraint("Vertical", 1))
sketch13.addConstraint(Sketcher.Constraint("Horizontal", 2))
sketch13.addConstraint(Sketcher.Constraint("Vertical", 3))
sketch13.addConstraint(Sketcher.Constraint("DistanceX", 0, 2, 0, 1, Q("60 mm")))
sketch13.addConstraint(Sketcher.Constraint("DistanceX", -1, 1, 0, 2, Q("195 mm")))
sketch13.addConstraint(Sketcher.Constraint("DistanceY", 1, 2, 1, 1, Q("76.670556 mm")))
sketch13.addConstraint(Sketcher.Constraint("DistanceY", -1, 1, 0, 2, Q("38.335278 mm")))
pad10 = doc.addObject("PartDesign::Pad", "Pad009")
body.addObject(pad10)
pad10.Profile = sketch13
pad10.Length = 5

# Sketch on YZ plane
sketch14 = doc.addObject("Sketcher::SketchObject", "Sketch013")
body.addObject(sketch14)
sketch14.AttachmentSupport = (doc.YZ_Plane, [""])
sketch14.MapMode = "FlatFace"
sketch14.AttachmentOffset = App.Placement(Vector(0, 0, 113), App.Rotation())
sketch14.addGeometry(Part.Circle(Vector(209.5, 15.5, 0), Vector(0, 0, 1), 1.25), False)
sketch14.addGeometry(Part.Circle(Vector(209.5, -15.5, 0), Vector(0, 0, 1), 1.25), False)
sketch14.addGeometry(Part.Circle(Vector(240.5, -15.5, 0), Vector(0, 0, 1), 1.25), False)
sketch14.addGeometry(Part.Circle(Vector(240.5, 15.5, 0), Vector(0, 0, 1), 1.25), False)
sketch14.addGeometry(Part.Circle(Vector(225, 0, 0), Vector(0, 0, 1), 10), False)
sketch14.addConstraint(Sketcher.Constraint("Equal", 0, 1))
sketch14.addConstraint(Sketcher.Constraint("Equal", 1, 2))
sketch14.addConstraint(Sketcher.Constraint("Equal", 2, 3))
sketch14.addConstraint(Sketcher.Constraint("Symmetric", 0, 3, 1, 3, -1))
sketch14.addConstraint(Sketcher.Constraint("Symmetric", 2, 3, 3, 3, -1))
sketch14.addConstraint(Sketcher.Constraint("PointOnObject", 4, 3, -1))
sketch14.addConstraint(Sketcher.Constraint("Horizontal", 1, 3, 2, 3))
sketch14.addConstraint(Sketcher.Constraint("Diameter", 4, Q("20 mm")))
sketch14.addConstraint(Sketcher.Constraint("Diameter", 0, Q("2.5 mm")))
sketch14.addConstraint(Sketcher.Constraint("DistanceX", -1, 1, 4, 3, Q("225 mm")))
sketch14.addConstraint(Sketcher.Constraint("DistanceY", 1, 3, 0, 3, Q("31 mm")))
sketch14.addConstraint(Sketcher.Constraint("DistanceX", 1, 3, 2, 3, Q("31 mm")))
sketch14.addConstraint(Sketcher.Constraint("DistanceX", -1, 1, 0, 3, Q("209.5 mm")))
pocket4 = doc.addObject("PartDesign::Pocket", "Pocket003")
body.addObject(pocket4)
pocket4.Profile = sketch14
pocket4.Length = 10
body4 = doc.addObject("PartDesign::Body", "Body003")

# Sketch on XZ plane
sketch15 = doc.addObject("Sketcher::SketchObject", "Sketch014")
body4.addObject(sketch15)
sketch15.AttachmentSupport = (doc.getObject("XZ_Plane003"), [""])
sketch15.MapMode = "FlatFace"
sketch15.addGeometry(Part.LineSegment(Vector(105, -80, 0), Vector(105, 80, 0)), False)
sketch15.addGeometry(Part.LineSegment(Vector(105, 80, 0), Vector(-105, 80, 0)), False)
sketch15.addGeometry(Part.LineSegment(Vector(-105, 80, 0), Vector(-105, -80, 0)), False)
sketch15.addGeometry(Part.LineSegment(Vector(-105, -80, 0), Vector(105, -80, 0)), False)
sketch15.addGeometry(Part.LineSegment(Vector(-100, 75, 0), Vector(100, 75, 0)), False)
sketch15.addGeometry(Part.LineSegment(Vector(100, 75, 0), Vector(100, -75, 0)), False)
sketch15.addGeometry(Part.LineSegment(Vector(100, -75, 0), Vector(-100, -75, 0)), False)
sketch15.addGeometry(Part.LineSegment(Vector(-100, -75, 0), Vector(-100, 75, 0)), False)
sketch15.addConstraint(Sketcher.Constraint("Coincident", 0, 2, 1, 1))
sketch15.addConstraint(Sketcher.Constraint("Coincident", 1, 2, 2, 1))
sketch15.addConstraint(Sketcher.Constraint("Coincident", 2, 2, 3, 1))
sketch15.addConstraint(Sketcher.Constraint("Coincident", 3, 2, 0, 1))
sketch15.addConstraint(Sketcher.Constraint("Coincident", 4, 2, 5, 1))
sketch15.addConstraint(Sketcher.Constraint("Coincident", 5, 2, 6, 1))
sketch15.addConstraint(Sketcher.Constraint("Coincident", 6, 2, 7, 1))
sketch15.addConstraint(Sketcher.Constraint("Coincident", 7, 2, 4, 1))
sketch15.addConstraint(Sketcher.Constraint("Vertical", 0))
sketch15.addConstraint(Sketcher.Constraint("Horizontal", 1))
sketch15.addConstraint(Sketcher.Constraint("Vertical", 2))
sketch15.addConstraint(Sketcher.Constraint("Horizontal", 3))
sketch15.addConstraint(Sketcher.Constraint("Horizontal", 4))
sketch15.addConstraint(Sketcher.Constraint("Vertical", 5))
sketch15.addConstraint(Sketcher.Constraint("Horizontal", 6))
sketch15.addConstraint(Sketcher.Constraint("Vertical", 7))
sketch15.addConstraint(Sketcher.Constraint("Symmetric", 0, 2, 2, 2, -1, 1))
sketch15.addConstraint(Sketcher.Constraint("Symmetric", 4, 2, 6, 2, -1, 1))
sketch15.addConstraint(Sketcher.Constraint("DistanceX", 1, 2, 1, 1, Q("210 mm")))
sketch15.addConstraint(Sketcher.Constraint("DistanceX", 4, 1, 4, 2, Q("200 mm")))
sketch15.addConstraint(Sketcher.Constraint("DistanceY", 0, 1, 0, 2, Q("160 mm")))
sketch15.addConstraint(Sketcher.Constraint("DistanceY", 5, 2, 5, 1, Q("150 mm")))
pad11 = doc.addObject("PartDesign::Pad", "Pad010")
body4.addObject(pad11)
pad11.Profile = sketch15
pad11.Length = 20
pad11.Midplane = True
doc.recompute()

fillet = doc.addObject("PartDesign::Fillet", "Fillet")
body4.addObject(fillet)
fillet.Base = (pad11, edges_at(pad11, [
    (105, 0, -80),
    (-105, 0, -80),
    (-105, 0, 80),
    (105, 0, 80),
]))
fillet.Radius = 5
body5 = doc.addObject("PartDesign::Body", "Body004")

# Sketch on XZ plane
sketch16 = doc.addObject("Sketcher::SketchObject", "Sketch015")
body5.addObject(sketch16)
sketch16.AttachmentSupport = (doc.getObject("XZ_Plane004"), [""])
sketch16.MapMode = "FlatFace"
sketch16.AttachmentOffset = App.Placement(Vector(0, 0, -140), App.Rotation())
sketch16.addGeometry(Part.LineSegment(Vector(-105, 80, 0), Vector(-105, -80, 0)), False)
sketch16.addGeometry(Part.LineSegment(Vector(-105, -80, 0), Vector(105, -80, 0)), False)
sketch16.addGeometry(Part.LineSegment(Vector(105, -80, 0), Vector(105, 80, 0)), False)
sketch16.addGeometry(Part.LineSegment(Vector(105, 80, 0), Vector(-105, 80, 0)), False)
sketch16.addGeometry(Part.LineSegment(Vector(100, -75, 0), Vector(-100, -75, 0)), False)
sketch16.addGeometry(Part.LineSegment(Vector(-100, -75, 0), Vector(-100, 75, 0)), False)
sketch16.addGeometry(Part.LineSegment(Vector(-100, 75, 0), Vector(100, 75, 0)), False)
sketch16.addGeometry(Part.LineSegment(Vector(100, 75, 0), Vector(100, -75, 0)), False)
sketch16.addConstraint(Sketcher.Constraint("Coincident", 0, 2, 1, 1))
sketch16.addConstraint(Sketcher.Constraint("Coincident", 1, 2, 2, 1))
sketch16.addConstraint(Sketcher.Constraint("Coincident", 2, 2, 3, 1))
sketch16.addConstraint(Sketcher.Constraint("Coincident", 3, 2, 0, 1))
sketch16.addConstraint(Sketcher.Constraint("Coincident", 4, 2, 5, 1))
sketch16.addConstraint(Sketcher.Constraint("Coincident", 5, 2, 6, 1))
sketch16.addConstraint(Sketcher.Constraint("Coincident", 6, 2, 7, 1))
sketch16.addConstraint(Sketcher.Constraint("Coincident", 7, 2, 4, 1))
sketch16.addConstraint(Sketcher.Constraint("Vertical", 0))
sketch16.addConstraint(Sketcher.Constraint("Horizontal", 1))
sketch16.addConstraint(Sketcher.Constraint("Vertical", 2))
sketch16.addConstraint(Sketcher.Constraint("Horizontal", 3))
sketch16.addConstraint(Sketcher.Constraint("Horizontal", 4))
sketch16.addConstraint(Sketcher.Constraint("Vertical", 5))
sketch16.addConstraint(Sketcher.Constraint("Horizontal", 6))
sketch16.addConstraint(Sketcher.Constraint("Vertical", 7))
sketch16.addConstraint(Sketcher.Constraint("Symmetric", 0, 2, 2, 2, -1, 1))
sketch16.addConstraint(Sketcher.Constraint("Symmetric", 4, 2, 6, 2, -1, 1))
sketch16.addConstraint(Sketcher.Constraint("DistanceX", 1, 1, 1, 2, Q("210 mm")))
sketch16.addConstraint(Sketcher.Constraint("DistanceX", 4, 2, 4, 1, Q("200 mm")))
sketch16.addConstraint(Sketcher.Constraint("DistanceY", 0, 2, 0, 1, Q("160 mm")))
sketch16.addConstraint(Sketcher.Constraint("DistanceY", 5, 1, 5, 2, Q("150 mm")))
pad12 = doc.addObject("PartDesign::Pad", "Pad011")
body5.addObject(pad12)
pad12.Profile = sketch16
pad12.Length = 20
pad12.Midplane = True
doc.recompute()

fillet2 = doc.addObject("PartDesign::Fillet", "Fillet001")
body5.addObject(fillet2)
fillet2.Base = (pad12, edges_at(pad12, [
    (105, 140, -80),
    (-105, 140, -80),
    (-105, 140, 80),
    (105, 140, 80),
]))
fillet2.Radius = 5

doc.recompute()
